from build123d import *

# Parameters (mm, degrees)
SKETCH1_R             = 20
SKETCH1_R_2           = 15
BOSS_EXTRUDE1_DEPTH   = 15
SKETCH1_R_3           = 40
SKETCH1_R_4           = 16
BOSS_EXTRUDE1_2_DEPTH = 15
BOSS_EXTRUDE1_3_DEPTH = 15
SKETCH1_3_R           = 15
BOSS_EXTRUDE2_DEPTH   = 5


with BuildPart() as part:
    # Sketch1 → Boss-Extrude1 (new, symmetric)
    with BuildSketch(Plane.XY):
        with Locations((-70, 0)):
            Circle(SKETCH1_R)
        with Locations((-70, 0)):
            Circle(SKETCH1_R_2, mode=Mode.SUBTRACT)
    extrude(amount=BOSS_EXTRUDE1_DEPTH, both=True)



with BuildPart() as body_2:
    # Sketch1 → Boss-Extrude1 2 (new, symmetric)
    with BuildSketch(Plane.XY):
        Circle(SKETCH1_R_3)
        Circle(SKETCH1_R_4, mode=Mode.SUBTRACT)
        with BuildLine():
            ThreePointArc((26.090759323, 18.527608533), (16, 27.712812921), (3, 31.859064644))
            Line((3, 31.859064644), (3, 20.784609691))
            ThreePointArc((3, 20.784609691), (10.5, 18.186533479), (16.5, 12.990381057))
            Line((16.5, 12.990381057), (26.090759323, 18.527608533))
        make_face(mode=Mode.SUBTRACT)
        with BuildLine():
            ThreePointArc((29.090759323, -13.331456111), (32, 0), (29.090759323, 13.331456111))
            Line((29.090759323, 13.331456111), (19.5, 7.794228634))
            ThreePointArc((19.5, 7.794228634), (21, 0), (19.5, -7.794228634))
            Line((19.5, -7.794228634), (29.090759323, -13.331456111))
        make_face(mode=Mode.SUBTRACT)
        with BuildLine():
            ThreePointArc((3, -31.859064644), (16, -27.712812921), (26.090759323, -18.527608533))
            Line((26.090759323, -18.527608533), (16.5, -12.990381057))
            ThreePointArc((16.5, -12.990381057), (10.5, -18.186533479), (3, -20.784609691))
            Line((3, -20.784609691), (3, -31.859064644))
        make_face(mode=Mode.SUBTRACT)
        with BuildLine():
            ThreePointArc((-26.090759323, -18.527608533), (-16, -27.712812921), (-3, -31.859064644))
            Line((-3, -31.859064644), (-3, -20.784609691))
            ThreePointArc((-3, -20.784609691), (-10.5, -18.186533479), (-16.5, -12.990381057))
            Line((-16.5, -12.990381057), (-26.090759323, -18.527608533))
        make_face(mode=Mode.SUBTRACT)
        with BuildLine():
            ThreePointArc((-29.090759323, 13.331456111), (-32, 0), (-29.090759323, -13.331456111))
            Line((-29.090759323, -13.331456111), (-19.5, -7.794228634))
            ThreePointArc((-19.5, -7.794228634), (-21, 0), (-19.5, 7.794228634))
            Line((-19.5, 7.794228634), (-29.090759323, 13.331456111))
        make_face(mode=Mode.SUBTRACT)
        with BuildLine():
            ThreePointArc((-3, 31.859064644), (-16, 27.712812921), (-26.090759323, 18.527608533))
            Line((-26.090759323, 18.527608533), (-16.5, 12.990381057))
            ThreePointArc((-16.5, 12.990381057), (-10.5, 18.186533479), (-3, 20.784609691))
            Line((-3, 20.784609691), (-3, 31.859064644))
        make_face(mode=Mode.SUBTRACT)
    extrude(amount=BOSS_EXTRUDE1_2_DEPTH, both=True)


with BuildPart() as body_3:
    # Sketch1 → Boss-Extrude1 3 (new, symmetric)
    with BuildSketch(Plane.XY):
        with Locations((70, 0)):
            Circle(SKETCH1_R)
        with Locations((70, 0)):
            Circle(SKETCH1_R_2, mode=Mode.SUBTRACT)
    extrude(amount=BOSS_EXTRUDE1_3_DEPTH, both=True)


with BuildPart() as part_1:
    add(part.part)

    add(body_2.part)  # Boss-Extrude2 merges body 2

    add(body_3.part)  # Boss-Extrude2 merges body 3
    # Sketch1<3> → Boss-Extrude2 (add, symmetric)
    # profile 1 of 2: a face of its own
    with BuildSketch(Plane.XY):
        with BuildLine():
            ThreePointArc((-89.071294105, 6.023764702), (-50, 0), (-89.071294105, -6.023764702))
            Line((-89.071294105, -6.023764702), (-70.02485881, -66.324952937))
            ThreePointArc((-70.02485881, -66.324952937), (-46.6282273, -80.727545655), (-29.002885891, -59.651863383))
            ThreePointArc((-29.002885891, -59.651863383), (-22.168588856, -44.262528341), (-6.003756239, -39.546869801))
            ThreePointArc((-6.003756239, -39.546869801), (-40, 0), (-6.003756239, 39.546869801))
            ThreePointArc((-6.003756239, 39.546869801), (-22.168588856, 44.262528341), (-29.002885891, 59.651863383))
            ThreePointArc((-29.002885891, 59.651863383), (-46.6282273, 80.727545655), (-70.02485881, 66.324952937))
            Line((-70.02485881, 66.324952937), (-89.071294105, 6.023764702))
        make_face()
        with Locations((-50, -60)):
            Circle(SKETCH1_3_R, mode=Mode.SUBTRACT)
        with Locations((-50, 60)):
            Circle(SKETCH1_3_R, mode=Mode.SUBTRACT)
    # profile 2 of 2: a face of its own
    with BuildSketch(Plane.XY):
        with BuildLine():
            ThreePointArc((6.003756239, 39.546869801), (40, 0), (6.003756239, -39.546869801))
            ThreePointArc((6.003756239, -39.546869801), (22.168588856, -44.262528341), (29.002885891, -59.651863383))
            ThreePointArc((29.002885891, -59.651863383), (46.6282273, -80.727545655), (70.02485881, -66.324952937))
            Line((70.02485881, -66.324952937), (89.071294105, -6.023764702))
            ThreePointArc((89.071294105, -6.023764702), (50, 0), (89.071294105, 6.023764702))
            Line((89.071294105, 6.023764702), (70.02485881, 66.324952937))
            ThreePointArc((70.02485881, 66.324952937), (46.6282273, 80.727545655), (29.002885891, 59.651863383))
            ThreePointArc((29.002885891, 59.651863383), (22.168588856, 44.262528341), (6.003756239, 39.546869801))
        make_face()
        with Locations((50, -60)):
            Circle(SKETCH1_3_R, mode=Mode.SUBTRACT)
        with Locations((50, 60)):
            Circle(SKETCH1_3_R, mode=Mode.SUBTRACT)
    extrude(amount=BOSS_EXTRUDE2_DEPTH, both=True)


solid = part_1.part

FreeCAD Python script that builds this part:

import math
import FreeCAD as App
import Part
import Sketcher
from FreeCAD import Vector
Q = App.Units.Quantity

doc = App.newDocument("Part")
body = doc.addObject("PartDesign::Body", "Body")

sketch1 = body.newObject("Sketcher::SketchObject", "Sketch")
sketch1.AttachmentSupport = (doc.getObject("XY_Plane"), [""])
sketch1.MapMode = "FlatFace"
sketch1.addGeometry(Part.Circle(Vector(-70, 0, 0), Vector(0, 0, 1), 20), False)
sketch1.addGeometry(Part.Circle(Vector(-70, 0, 0), Vector(0, 0, 1), 15), False)
sketch1.addConstraint(Sketcher.Constraint("Coincident", 1, 3, 0, 3))
sketch1.addConstraint(Sketcher.Constraint("PointOnObject", 0, 3, -1))
sketch1.addConstraint(Sketcher.Constraint("Diameter", 0, Q("40 mm")))
sketch1.addConstraint(Sketcher.Constraint("Diameter", 1, Q("30 mm")))
sketch1.addConstraint(Sketcher.Constraint("DistanceX", 0, 3, -1, 1, Q("70 mm")))
pad1 = body.newObject("PartDesign::Pad", "Pad")
pad1.Profile = sketch1
pad1.Length = 30
pad1.Midplane = True
body2 = doc.addObject("PartDesign::Body", "Body001")

sketch2 = body2.newObject("Sketcher::SketchObject", "Sketch001")
sketch2.AttachmentSupport = (doc.getObject("XY_Plane001"), [""])
sketch2.MapMode = "FlatFace"
sketch2.addGeometry(Part.Circle(Vector(0, 0, 0), Vector(0, 0, 1), 40), False)
sketch2.addGeometry(Part.ArcOfCircle(Part.Circle(Vector(0, 0, 0), Vector(0, 0, 1), 32), math.radians(-145), math.radians(-95)), False)
sketch2.addGeometry(Part.LineSegment(Vector(-26, -19, 0), Vector(-16, -13, 0)), False)
sketch2.addGeometry(Part.ArcOfCircle(Part.Circle(Vector(0, 0, 0), Vector(0, 0, 1), 21), math.radians(-142), math.radians(-98)), False)
sketch2.addGeometry(Part.LineSegment(Vector(-3, -21, 0), Vector(-3, -32, 0)), False)
sketch2.addGeometry(Part.ArcOfCircle(Part.Circle(Vector(0, 0, 0), Vector(0, 0, 1), 32), math.radians(-85), math.radians(-35)), False)
sketch2.addGeometry(Part.LineSegment(Vector(3, -32, 0), Vector(3, -21, 0)), False)
sketch2.addGeometry(Part.ArcOfCircle(Part.Circle(Vector(0, 0, 0), Vector(0, 0, 1), 21), math.radians(-82), math.radians(-38)), False)
sketch2.addGeometry(Part.LineSegment(Vector(16, -13, 0), Vector(26, -19, 0)), False)
sketch2.addGeometry(Part.ArcOfCircle(Part.Circle(Vector(0, 0, 0), Vector(0, 0, 1), 32), math.radians(155), math.radians(205)), False)
sketch2.addGeometry(Part.LineSegment(Vector(-29, 13, 0), Vector(-20, 8, 0)), False)
sketch2.addGeometry(Part.ArcOfCircle(Part.Circle(Vector(0, 0, 0), Vector(0, 0, 1), 21), math.radians(158), math.radians(202)), False)
sketch2.addGeometry(Part.LineSegment(Vector(-20, -8, 0), Vector(-29, -13, 0)), False)
sketch2.addGeometry(Part.ArcOfCircle(Part.Circle(Vector(0, 0, 0), Vector(0, 0, 1), 32), math.radians(95), math.radians(145)), False)
sketch2.addGeometry(Part.LineSegment(Vector(-3, 32, 0), Vector(-3, 21, 0)), False)
sketch2.addGeometry(Part.ArcOfCircle(Part.Circle(Vector(0, 0, 0), Vector(0, 0, 1), 21), math.radians(98), math.radians(142)), False)
sketch2.addGeometry(Part.LineSegment(Vector(-16, 13, 0), Vector(-26, 19, 0)), False)
sketch2.addGeometry(Part.Circle(Vector(0, 0, 0), Vector(0, 0, 1), 16), False)
sketch2.addGeometry(Part.ArcOfCircle(Part.Circle(Vector(0, 0, 0), Vector(0, 0, 1), 32), math.radians(-25), math.radians(25)), False)
sketch2.addGeometry(Part.LineSegment(Vector(29, -13, 0), Vector(20, -8, 0)), False)
sketch2.addGeometry(Part.ArcOfCircle(Part.Circle(Vector(0, 0, 0), Vector(0, 0, 1), 21), math.radians(-22), math.radians(22)), False)
sketch2.addGeometry(Part.LineSegment(Vector(20, 8, 0), Vector(29, 13, 0)), False)
sketch2.addGeometry(Part.ArcOfCircle(Part.Circle(Vector(0, 0, 0), Vector(0, 0, 1), 32), math.radians(35), math.radians(85)), False)
sketch2.addGeometry(Part.LineSegment(Vector(26, 19, 0), Vector(16, 13, 0)), False)
sketch2.addGeometry(Part.ArcOfCircle(Part.Circle(Vector(0, 0, 0), Vector(0, 0, 1), 21), math.radians(38), math.radians(82)), False)
sketch2.addGeometry(Part.LineSegment(Vector(3, 21, 0), Vector(3, 32, 0)), False)
sketch2.addConstraint(Sketcher.Constraint("Coincident", 1, 1, 2, 1))
sketch2.addConstraint(Sketcher.Constraint("Coincident", 2, 2, 3, 1))
sketch2.addConstraint(Sketcher.Constraint("Coincident", 3, 2, 4, 1))
sketch2.addConstraint(Sketcher.Constraint("Coincident", 4, 2, 1, 2))
sketch2.addConstraint(Sketcher.Constraint("Coincident", 5, 1, 6, 1))
sketch2.addConstraint(Sketcher.Constraint("Coincident", 6, 2, 7, 1))
sketch2.addConstraint(Sketcher.Constraint("Coincident", 7, 2, 8, 1))
sketch2.addConstraint(Sketcher.Constraint("Coincident", 8, 2, 5, 2))
sketch2.addConstraint(Sketcher.Constraint("Coincident", 9, 1, 10, 1))
sketch2.addConstraint(Sketcher.Constraint("Coincident", 10, 2, 11, 1))
sketch2.addConstraint(Sketcher.Constraint("Coincident", 11, 2, 12, 1))
sketch2.addConstraint(Sketcher.Constraint("Coincident", 12, 2, 9, 2))
sketch2.addConstraint(Sketcher.Constraint("Coincident", 13, 1, 14, 1))
sketch2.addConstraint(Sketcher.Constraint("Coincident", 14, 2, 15, 1))
sketch2.addConstraint(Sketcher.Constraint("Coincident", 15, 2, 16, 1))
sketch2.addConstraint(Sketcher.Constraint("Coincident", 16, 2, 13, 2))
sketch2.addConstraint(Sketcher.Constraint("Coincident", 18, 1, 19, 1))
sketch2.addConstraint(Sketcher.Constraint("Coincident", 19, 2, 20, 1))
sketch2.addConstraint(Sketcher.Constraint("Coincident", 20, 2, 21, 1))
sketch2.addConstraint(Sketcher.Constraint("Coincident", 21, 2, 18, 2))
sketch2.addConstraint(Sketcher.Constraint("Coincident", 22, 1, 23, 1))
sketch2.addConstraint(Sketcher.Constraint("Coincident", 23, 2, 24, 1))
sketch2.addConstraint(Sketcher.Constraint("Coincident", 24, 2, 25, 1))
sketch2.addConstraint(Sketcher.Constraint("Coincident", 25, 2, 22, 2))
sketch2.addConstraint(Sketcher.Constraint("Vertical", 4))
sketch2.addConstraint(Sketcher.Constraint("Vertical", 6))
sketch2.addConstraint(Sketcher.Constraint("Vertical", 14))
sketch2.addConstraint(Sketcher.Constraint("Vertical", 25))
sketch2.addConstraint(Sketcher.Constraint("Coincident", 0, 3, -1, 1))
sketch2.addConstraint(Sketcher.Constraint("Coincident", 1, 3, -1, 1))
sketch2.addConstraint(Sketcher.Constraint("Coincident", 3, 3, -1, 1))
sketch2.addConstraint(Sketcher.Constraint("Coincident", 5, 3, -1, 1))
sketch2.addConstraint(Sketcher.Constraint("Coincident", 7, 3, -1, 1))
sketch2.addConstraint(Sketcher.Constraint("Coincident", 9, 3, -1, 1))
sketch2.addConstraint(Sketcher.Constraint("Coincident", 11, 3, -1, 1))
sketch2.addConstraint(Sketcher.Constraint("Coincident", 13, 3, -1, 1))
sketch2.addConstraint(Sketcher.Constraint("Coincident", 15, 3, -1, 1))
sketch2.addConstraint(Sketcher.Constraint("Coincident", 17, 3, -1, 1))
sketch2.addConstraint(Sketcher.Constraint("Coincident", 18, 3, -1, 1))
sketch2.addConstraint(Sketcher.Constraint("Coincident", 20, 3, -1, 1))
sketch2.addConstraint(Sketcher.Constraint("Coincident", 22, 3, -1, 1))
sketch2.addConstraint(Sketcher.Constraint("Coincident", 24, 3, -1, 1))
sketch2.addConstraint(Sketcher.Constraint("Equal", 1, 5))
sketch2.addConstraint(Sketcher.Constraint("Equal", 3, 7))
sketch2.addConstraint(Sketcher.Constraint("Equal", 5, 9))
sketch2.addConstraint(Sketcher.Constraint("Equal", 7, 11))
sketch2.addConstraint(Sketcher.Constraint("Equal", 9, 13))
sketch2.addConstraint(Sketcher.Constraint("Equal", 11, 15))
sketch2.addConstraint(Sketcher.Constraint("Equal", 13, 18))
sketch2.addConstraint(Sketcher.Constraint("Equal", 15, 20))
sketch2.addConstraint(Sketcher.Constraint("Equal", 18, 22))
sketch2.addConstraint(Sketcher.Constraint("Equal", 20, 24))
sketch2.addConstraint(Sketcher.Constraint("Parallel", 8, 10))
sketch2.addConstraint(Sketcher.Constraint("Parallel", 2, 12))
sketch2.addConstraint(Sketcher.Constraint("Parallel", 10, 16))
sketch2.addConstraint(Sketcher.Constraint("Parallel", 16, 19))
sketch2.addConstraint(Sketcher.Constraint("Parallel", 12, 21))
sketch2.addConstraint(Sketcher.Constraint("Parallel", 21, 23))
sketch2.addConstraint(Sketcher.Constraint("Horizontal", 4, 2, 5, 1))
sketch2.addConstraint(Sketcher.Constraint("Horizontal", 2, 2, 7, 2))
sketch2.addConstraint(Sketcher.Constraint("Horizontal", 1, 1, 8, 2))
sketch2.addConstraint(Sketcher.Constraint("Horizontal", 12, 2, 18, 1))
sketch2.addConstraint(Sketcher.Constraint("Horizontal", 10, 2, 20, 2))
sketch2.addConstraint(Sketcher.Constraint("Horizontal", 16, 2, 22, 1))
sketch2.addConstraint(Sketcher.Constraint("Horizontal", 14, 2, 24, 2))
sketch2.addConstraint(Sketcher.Constraint("Vertical", 10, 2, 11, 2))
sketch2.addConstraint(Sketcher.Constraint("Vertical", 4, 2, 13, 1))
sketch2.addConstraint(Sketcher.Constraint("Vertical", 2, 2, 15, 2))
sketch2.addConstraint(Sketcher.Constraint("Equal", 8, 10))
sketch2.addConstraint(Sketcher.Constraint("Diameter", 0, Q("80 mm")))
sketch2.addConstraint(Sketcher.Constraint("Diameter", 17, Q("32 mm")))
sketch2.addConstraint(Sketcher.Constraint("Radius", 1, Q("32 mm")))
sketch2.addConstraint(Sketcher.Constraint("Radius", 3, Q("21 mm")))
sketch2.addConstraint(Sketcher.Constraint("Angle", 2, Q("30 deg")))
sketch2.addConstraint(Sketcher.Constraint("DistanceX", 3, 2, -1, 1, Q("3 mm")))
sketch2.addConstraint(Sketcher.Constraint("DistanceX", 9, 1, 1, 1, Q("3 mm")))
pad2 = body2.newObject("PartDesign::Pad", "Pad001")
pad2.Profile = sketch2
pad2.Length = 30
pad2.Midplane = True
body3 = doc.addObject("PartDesign::Body", "Body002")

sketch3 = body3.newObject("Sketcher::SketchObject", "Sketch002")
sketch3.AttachmentSupport = (doc.getObject("XY_Plane002"), [""])
sketch3.MapMode = "FlatFace"
sketch3.addGeometry(Part.Circle(Vector(70, 0, 0), Vector(0, 0, 1), 20), False)
sketch3.addGeometry(Part.Circle(Vector(70, 0, 0), Vector(0, 0, 1), 15), False)
sketch3.addConstraint(Sketcher.Constraint("Coincident", 1, 3, 0, 3))
sketch3.addConstraint(Sketcher.Constraint("PointOnObject", 0, 3, -1))
sketch3.addConstraint(Sketcher.Constraint("Diameter", 0, Q("40 mm")))
sketch3.addConstraint(Sketcher.Constraint("Diameter", 1, Q("30 mm")))
sketch3.addConstraint(Sketcher.Constraint("DistanceX", -1, 1, 0, 3, Q("70 mm")))
pad3 = body3.newObject("PartDesign::Pad", "Pad002")
pad3.Profile = sketch3
pad3.Length = 30
pad3.Midplane = True
body.AllowCompound = True
doc.recompute()

boolean = body.newObject("PartDesign::Boolean", "Boolean")
boolean.Type = "Fuse"
boolean.addObjects([body2])
doc.recompute()

boolean2 = body.newObject("PartDesign::Boolean", "Boolean001")
boolean2.Type = "Fuse"
boolean2.addObjects([body3])

sketch4 = body.newObject("Sketcher::SketchObject", "Sketch003")
sketch4.AttachmentSupport = (doc.getObject("XY_Plane"), [""])
sketch4.MapMode = "FlatFace"
sketch4.addGeometry(Part.ArcOfCircle(Part.Circle(Vector(-70, 0, 0), Vector(0, 0, 1), 20), math.radians(-162), math.radians(162)), False)
sketch4.addGeometry(Part.LineSegment(Vector(-89, -6, 0), Vector(-70, -66, 0)), False)
sketch4.addGeometry(Part.ArcOfCircle(Part.Circle(Vector(-50, -60, 0), Vector(0, 0, 1), 21), math.radians(-162), math.radians(1)), False)
sketch4.addGeometry(Part.ArcOfCircle(Part.Circle(Vector(-9, -59, 0), Vector(0, 0, 1), 20), math.radians(81), math.radians(181)), False)
sketch4.addGeometry(Part.ArcOfCircle(Part.Circle(Vector(0, 0, 0), Vector(0, 0, 1), 40), math.radians(99), math.radians(261)), False)
sketch4.addGeometry(Part.ArcOfCircle(Part.Circle(Vector(-9, 59, 0), Vector(0, 0, 1), 20), math.radians(179), math.radians(279)), False)
sketch4.addGeometry(Part.ArcOfCircle(Part.Circle(Vector(-50, 60, 0), Vector(0, 0, 1), 21), math.radians(-1), math.radians(162)), False)
sketch4.addGeometry(Part.LineSegment(Vector(-70, 66, 0), Vector(-89, 6, 0)), False)
sketch4.addGeometry(Part.Circle(Vector(-50, -60, 0), Vector(0, 0, 1), 15), False)
sketch4.addGeometry(Part.Circle(Vector(-50, 60, 0), Vector(0, 0, 1), 15), False)
sketch4.addGeometry(Part.ArcOfCircle(Part.Circle(Vector(0, 0, 0), Vector(0, 0, 1), 40), math.radians(-81), math.radians(81)), False)
sketch4.addGeometry(Part.ArcOfCircle(Part.Circle(Vector(9, -59, 0), Vector(0, 0, 1), 20), math.radians(-1), math.radians(99)), False)
sketch4.addGeometry(Part.ArcOfCircle(Part.Circle(Vector(50, -60, 0), Vector(0, 0, 1), 21), math.radians(179), math.radians(342)), False)
sketch4.addGeometry(Part.LineSegment(Vector(70, -66, 0), Vector(89, -6, 0)), False)
sketch4.addGeometry(Part.ArcOfCircle(Part.Circle(Vector(70, 0, 0), Vector(0, 0, 1), 20), math.radians(18), math.radians(342)), False)
sketch4.addGeometry(Part.LineSegment(Vector(89, 6, 0), Vector(70, 66, 0)), False)
sketch4.addGeometry(Part.ArcOfCircle(Part.Circle(Vector(50, 60, 0), Vector(0, 0, 1), 21), math.radians(18), math.radians(181)), False)
sketch4.addGeometry(Part.ArcOfCircle(Part.Circle(Vector(9, 59, 0), Vector(0, 0, 1), 20), math.radians(-99), math.radians(1)), False)
sketch4.addGeometry(Part.Circle(Vector(50, -60, 0), Vector(0, 0, 1), 15), False)
sketch4.addGeometry(Part.Circle(Vector(50, 60, 0), Vector(0, 0, 1), 15), False)
sketch4.addConstraint(Sketcher.Constraint("Tangent", 0, 1, 1, 1))
sketch4.addConstraint(Sketcher.Constraint("Tangent", 1, 2, 2, 1))
sketch4.addConstraint(Sketcher.Constraint("Tangent", 2, 2, 3, 2))
sketch4.addConstraint(Sketcher.Constraint("Tangent", 3, 1, 4, 2))
sketch4.addConstraint(Sketcher.Constraint("Tangent", 4, 1, 5, 2))
sketch4.addConstraint(Sketcher.Constraint("Tangent", 5, 1, 6, 1))
sketch4.addConstraint(Sketcher.Constraint("Tangent", 6, 2, 7, 1))
sketch4.addConstraint(Sketcher.Constraint("Tangent", 7, 2, 0, 2))
sketch4.addConstraint(Sketcher.Constraint("Tangent", 10, 1, 11, 2))
sketch4.addConstraint(Sketcher.Constraint("Tangent", 11, 1, 12, 1))
sketch4.addConstraint(Sketcher.Constraint("Tangent", 12, 2, 13, 1))
sketch4.addConstraint(Sketcher.Constraint("Tangent", 13, 2, 14, 2))
sketch4.addConstraint(Sketcher.Constraint("Tangent", 14, 1, 15, 1))
sketch4.addConstraint(Sketcher.Constraint("Tangent", 15, 2, 16, 1))
sketch4.addConstraint(Sketcher.Constraint("Tangent", 16, 2, 17, 2))
sketch4.addConstraint(Sketcher.Constraint("Tangent", 17, 1, 10, 2))
sketch4.addConstraint(Sketcher.Constraint("Coincident", 4, 3, -1, 1))
sketch4.addConstraint(Sketcher.Constraint("Coincident", 10, 3, -1, 1))
sketch4.addConstraint(Sketcher.Constraint("Coincident", 8, 3, 2, 3))
sketch4.addConstraint(Sketcher.Constraint("Coincident", 9, 3, 6, 3))
sketch4.addConstraint(Sketcher.Constraint("Coincident", 18, 3, 12, 3))
sketch4.addConstraint(Sketcher.Constraint("Coincident", 19, 3, 16, 3))
sketch4.addConstraint(Sketcher.Constraint("Equal", 0, 3))
sketch4.addConstraint(Sketcher.Constraint("Equal", 3, 5))
sketch4.addConstraint(Sketcher.Constraint("Equal", 2, 6))
sketch4.addConstraint(Sketcher.Constraint("Equal", 8, 9))
sketch4.addConstraint(Sketcher.Constraint("Equal", 4, 10))
sketch4.addConstraint(Sketcher.Constraint("Equal", 5, 11))
sketch4.addConstraint(Sketcher.Constraint("Equal", 6, 12))
sketch4.addConstraint(Sketcher.Constraint("Equal", 11, 14))
sketch4.addConstraint(Sketcher.Constraint("Equal", 12, 16))
sketch4.addConstraint(Sketcher.Constraint("Equal", 14, 17))
sketch4.addConstraint(Sketcher.Constraint("Equal", 9, 18))
sketch4.addConstraint(Sketcher.Constraint("Equal", 18, 19))
sketch4.addConstraint(Sketcher.Constraint("Symmetric", 6, 3, 12, 3, -1, 1))
sketch4.addConstraint(Sketcher.Constraint("Symmetric", 0, 3, 14, 3, -1, 1))
sketch4.addConstraint(Sketcher.Constraint("Symmetric", 2, 3, 16, 3, -1, 1))
sketch4.addConstraint(Sketcher.Constraint("Symmetric", 2, 3, 12, 3, -2))
sketch4.addConstraint(Sketcher.Constraint("PointOnObject", 0, 3, -1))
sketch4.addConstraint(Sketcher.Constraint("Diameter", 8, Q("30 mm")))
sketch4.addConstraint(Sketcher.Constraint("Radius", 0, Q("20 mm")))
sketch4.addConstraint(Sketcher.Constraint("Radius", 2, Q("21 mm")))
sketch4.addConstraint(Sketcher.Constraint("Radius", 4, Q("40 mm")))
sketch4.addConstraint(Sketcher.Constraint("DistanceX", 0, 3, -1, 1, Q("70 mm")))
sketch4.addConstraint(Sketcher.Constraint("DistanceX", 2, 3, -1, 1, Q("50 mm")))
sketch4.addConstraint(Sketcher.Constraint("DistanceY", 2, 3, -1, 1, Q("60 mm")))
pad4 = body.newObject("PartDesign::Pad", "Pad003")
pad4.Profile = sketch4
pad4.Length = 10
pad4.Midplane = True

doc.recompute()
